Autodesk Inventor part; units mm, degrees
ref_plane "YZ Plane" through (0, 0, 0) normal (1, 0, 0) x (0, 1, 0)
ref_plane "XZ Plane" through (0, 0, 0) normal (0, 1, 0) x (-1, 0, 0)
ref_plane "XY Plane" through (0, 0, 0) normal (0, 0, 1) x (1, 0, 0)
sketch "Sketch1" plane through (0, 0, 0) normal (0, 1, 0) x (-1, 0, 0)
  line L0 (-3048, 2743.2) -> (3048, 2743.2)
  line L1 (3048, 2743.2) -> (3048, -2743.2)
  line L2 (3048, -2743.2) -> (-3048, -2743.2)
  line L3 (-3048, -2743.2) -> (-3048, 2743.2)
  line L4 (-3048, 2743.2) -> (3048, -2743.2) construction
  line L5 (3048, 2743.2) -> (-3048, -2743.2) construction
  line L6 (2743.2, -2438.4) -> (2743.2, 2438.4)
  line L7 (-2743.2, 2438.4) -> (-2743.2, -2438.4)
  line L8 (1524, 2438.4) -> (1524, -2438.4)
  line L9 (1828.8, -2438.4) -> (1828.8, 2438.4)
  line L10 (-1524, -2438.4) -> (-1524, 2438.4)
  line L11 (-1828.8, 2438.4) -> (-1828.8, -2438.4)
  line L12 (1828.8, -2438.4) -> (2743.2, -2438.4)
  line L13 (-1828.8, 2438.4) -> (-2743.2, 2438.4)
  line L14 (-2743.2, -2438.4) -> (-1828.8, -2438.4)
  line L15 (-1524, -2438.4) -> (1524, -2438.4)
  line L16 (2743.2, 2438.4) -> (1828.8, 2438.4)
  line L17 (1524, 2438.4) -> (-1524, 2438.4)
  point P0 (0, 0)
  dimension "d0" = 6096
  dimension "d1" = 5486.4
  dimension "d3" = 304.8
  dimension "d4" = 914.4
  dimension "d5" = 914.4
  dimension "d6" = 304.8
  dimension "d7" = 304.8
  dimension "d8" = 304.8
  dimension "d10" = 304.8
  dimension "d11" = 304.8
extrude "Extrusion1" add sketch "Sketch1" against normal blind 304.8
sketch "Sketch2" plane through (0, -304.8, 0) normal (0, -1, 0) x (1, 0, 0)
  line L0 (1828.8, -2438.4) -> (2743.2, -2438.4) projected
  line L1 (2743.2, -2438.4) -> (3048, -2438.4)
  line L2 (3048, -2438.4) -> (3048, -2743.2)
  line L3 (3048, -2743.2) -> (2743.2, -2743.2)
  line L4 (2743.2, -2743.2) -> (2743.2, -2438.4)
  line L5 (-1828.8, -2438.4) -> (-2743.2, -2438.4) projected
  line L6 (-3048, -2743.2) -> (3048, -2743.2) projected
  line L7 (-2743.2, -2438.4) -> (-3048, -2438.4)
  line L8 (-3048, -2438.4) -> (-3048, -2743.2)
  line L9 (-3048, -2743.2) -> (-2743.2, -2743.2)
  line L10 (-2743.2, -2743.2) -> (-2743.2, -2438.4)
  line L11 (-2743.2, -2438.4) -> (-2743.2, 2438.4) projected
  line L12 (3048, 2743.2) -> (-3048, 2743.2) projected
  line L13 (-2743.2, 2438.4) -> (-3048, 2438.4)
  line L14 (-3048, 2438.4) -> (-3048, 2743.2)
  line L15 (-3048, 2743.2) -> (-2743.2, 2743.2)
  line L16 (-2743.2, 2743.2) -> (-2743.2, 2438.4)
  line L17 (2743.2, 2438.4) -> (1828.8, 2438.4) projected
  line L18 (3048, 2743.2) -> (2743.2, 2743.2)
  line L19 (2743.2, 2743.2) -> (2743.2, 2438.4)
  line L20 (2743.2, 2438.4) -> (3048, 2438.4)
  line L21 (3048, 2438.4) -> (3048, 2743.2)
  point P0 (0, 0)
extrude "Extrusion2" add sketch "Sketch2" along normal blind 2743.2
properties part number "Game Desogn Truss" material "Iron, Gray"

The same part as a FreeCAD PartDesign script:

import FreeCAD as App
import Part
import Sketcher
Q = App.Units.Quantity

doc = App.newDocument("Part")
body = doc.addObject("PartDesign::Body", "Body")

sketch1 = body.newObject("Sketcher::SketchObject", "Sketch")
sketch1.AttachmentSupport = (doc.getObject("XZ_Plane"), [""])
sketch1.MapMode = "FlatFace"
sketch1.addGeometry([
    Part.LineSegment(App.Vector(-3048, 2743, 0), App.Vector(3048, 2743, 0)),
    Part.LineSegment(App.Vector(3048, 2743, 0), App.Vector(3048, -2743, 0)),
    Part.LineSegment(App.Vector(3048, -2743, 0), App.Vector(-3048, -2743, 0)),
    Part.LineSegment(App.Vector(-3048, -2743, 0), App.Vector(-3048, 2743, 0)),
    Part.LineSegment(App.Vector(2743, -2438, 0), App.Vector(2743, 2438, 0)),
    Part.LineSegment(App.Vector(2743, 2438, 0), App.Vector(1829, 2438, 0)),
    Part.LineSegment(App.Vector(1829, 2438, 0), App.Vector(1829, -2438, 0)),
    Part.LineSegment(App.Vector(1829, -2438, 0), App.Vector(2743, -2438, 0)),
    Part.LineSegment(App.Vector(1524, 2438, 0), App.Vector(-1524, 2438, 0)),
    Part.LineSegment(App.Vector(-1524, 2438, 0), App.Vector(-1524, -2438, 0)),
    Part.LineSegment(App.Vector(-1524, -2438, 0), App.Vector(1524, -2438, 0)),
    Part.LineSegment(App.Vector(1524, -2438, 0), App.Vector(1524, 2438, 0)),
    Part.LineSegment(App.Vector(-2743, 2438, 0), App.Vector(-2743, -2438, 0)),
    Part.LineSegment(App.Vector(-2743, -2438, 0), App.Vector(-1829, -2438, 0)),
    Part.LineSegment(App.Vector(-1829, -2438, 0), App.Vector(-1829, 2438, 0)),
    Part.LineSegment(App.Vector(-1829, 2438, 0), App.Vector(-2743, 2438, 0)),
], False)
sketch1.addConstraint([
    Sketcher.Constraint("Coincident", 0, 2, 1, 1),
    Sketcher.Constraint("Coincident", 1, 2, 2, 1),
    Sketcher.Constraint("Coincident", 2, 2, 3, 1),
    Sketcher.Constraint("Coincident", 3, 2, 0, 1),
    Sketcher.Constraint("Coincident", 4, 2, 5, 1),
    Sketcher.Constraint("Coincident", 5, 2, 6, 1),
    Sketcher.Constraint("Coincident", 6, 2, 7, 1),
    Sketcher.Constraint("Coincident", 7, 2, 4, 1),
    Sketcher.Constraint("Coincident", 8, 2, 9, 1),
    Sketcher.Constraint("Coincident", 9, 2, 10, 1),
    Sketcher.Constraint("Coincident", 10, 2, 11, 1),
    Sketcher.Constraint("Coincident", 11, 2, 8, 1),
    Sketcher.Constraint("Coincident", 12, 2, 13, 1),
    Sketcher.Constraint("Coincident", 13, 2, 14, 1),
    Sketcher.Constraint("Coincident", 14, 2, 15, 1),
    Sketcher.Constraint("Coincident", 15, 2, 12, 1),
    Sketcher.Constraint("Horizontal", 0),
    Sketcher.Constraint("Vertical", 1),
    Sketcher.Constraint("Horizontal", 2),
    Sketcher.Constraint("Vertical", 3),
    Sketcher.Constraint("Vertical", 4),
    Sketcher.Constraint("Horizontal", 5),
    Sketcher.Constraint("Vertical", 6),
    Sketcher.Constraint("Horizontal", 7),
    Sketcher.Constraint("Horizontal", 8),
    Sketcher.Constraint("Vertical", 9),
    Sketcher.Constraint("Horizontal", 10),
    Sketcher.Constraint("Vertical", 11),
    Sketcher.Constraint("Vertical", 12),
    Sketcher.Constraint("Horizontal", 13),
    Sketcher.Constraint("Vertical", 14),
    Sketcher.Constraint("Horizontal", 15),
    Sketcher.Constraint("Symmetric", 0, 2, 2, 2, -1, 1),
    Sketcher.Constraint("Symmetric", 8, 2, 10, 2, -1, 1),
    Sketcher.Constraint("Symmetric", 4, 2, 12, 2, -1, 1),
    Sketcher.Constraint("Symmetric", 6, 2, 14, 2, -1, 1),
    Sketcher.Constraint("Horizontal", 5, 2, 8, 2),
    Sketcher.Constraint("Horizontal", 7, 2, 9, 2),
    Sketcher.Constraint("DistanceX", 0, 1, 0, 2, Q("240 in")),
    Sketcher.Constraint("DistanceX", 5, 2, 5, 1, Q("36 in")),
    Sketcher.Constraint("DistanceY", 1, 2, 1, 1, Q("216 in")),
    Sketcher.Constraint("DistanceX", 4, 2, 0, 2, Q("12 in")),
    Sketcher.Constraint("DistanceY", 4, 2, 0, 2, Q("12 in")),
    Sketcher.Constraint("DistanceX", 10, 2, 6, 2, Q("12 in")),
])
pad1 = body.newObject("PartDesign::Pad", "Pad")
pad1.Profile = sketch1
pad1.Length = Q("12 in")

sketch2 = body.newObject("Sketcher::SketchObject", "Sketch001")
sketch2.AttachmentSupport = (doc.getObject("XZ_Plane"), [""])
sketch2.MapMode = "FlatFace"
sketch2.AttachmentOffset = App.Placement(App.Vector(0, 0, 12 * 25.4), App.Rotation())
sketch2.addGeometry([
    Part.LineSegment(App.Vector(3048, 2743, 0), App.Vector(2743, 2743, 0)),
    Part.LineSegment(App.Vector(2743, 2743, 0), App.Vector(2743, 2438, 0)),
    Part.LineSegment(App.Vector(2743, 2438, 0), App.Vector(3048, 2438, 0)),
    Part.LineSegment(App.Vector(3048, 2438, 0), App.Vector(3048, 2743, 0)),
    Part.LineSegment(App.Vector(-3048, 2438, 0), App.Vector(-2743, 2438, 0)),
    Part.LineSegment(App.Vector(-2743, 2438, 0), App.Vector(-2743, 2743, 0)),
    Part.LineSegment(App.Vector(-2743, 2743, 0), App.Vector(-3048, 2743, 0)),
    Part.LineSegment(App.Vector(-3048, 2743, 0), App.Vector(-3048, 2438, 0)),
    Part.LineSegment(App.Vector(-3048, -2743, 0), App.Vector(-2743, -2743, 0)),
    Part.LineSegment(App.Vector(-2743, -2743, 0), App.Vector(-2743, -2438, 0)),
    Part.LineSegment(App.Vector(-2743, -2438, 0), App.Vector(-3048, -2438, 0)),
    Part.LineSegment(App.Vector(-3048, -2438, 0), App.Vector(-3048, -2743, 0)),
    Part.LineSegment(App.Vector(3048, -2438, 0), App.Vector(2743, -2438, 0)),
    Part.LineSegment(App.Vector(2743, -2438, 0), App.Vector(2743, -2743, 0)),
    Part.LineSegment(App.Vector(2743, -2743, 0), App.Vector(3048, -2743, 0)),
    Part.LineSegment(App.Vector(3048, -2743, 0), App.Vector(3048, -2438, 0)),
], False)
sketch2.addConstraint([
    Sketcher.Constraint("Coincident", 0, 2, 1, 1),
    Sketcher.Constraint("Coincident", 1, 2, 2, 1),
    Sketcher.Constraint("Coincident", 2, 2, 3, 1),
    Sketcher.Constraint("Coincident", 3, 2, 0, 1),
    Sketcher.Constraint("Coincident", 4, 2, 5, 1),
    Sketcher.Constraint("Coincident", 5, 2, 6, 1),
    Sketcher.Constraint("Coincident", 6, 2, 7, 1),
    Sketcher.Constraint("Coincident", 7, 2, 4, 1),
    Sketcher.Constraint("Coincident", 8, 2, 9, 1),
    Sketcher.Constraint("Coincident", 9, 2, 10, 1),
    Sketcher.Constraint("Coincident", 10, 2, 11, 1),
    Sketcher.Constraint("Coincident", 11, 2, 8, 1),
    Sketcher.Constraint("Coincident", 12, 2, 13, 1),
    Sketcher.Constraint("Coincident", 13, 2, 14, 1),
    Sketcher.Constraint("Coincident", 14, 2, 15, 1),
    Sketcher.Constraint("Coincident", 15, 2, 12, 1),
    Sketcher.Constraint("Horizontal", 0),
    Sketcher.Constraint("Vertical", 1),
    Sketcher.Constraint("Horizontal", 2),
    Sketcher.Constraint("Vertical", 3),
    Sketcher.Constraint("Horizontal", 4),
    Sketcher.Constraint("Vertical", 5),
    Sketcher.Constraint("Horizontal", 6),
    Sketcher.Constraint("Vertical", 7),
    Sketcher.Constraint("Horizontal", 8),
    Sketcher.Constraint("Vertical", 9),
    Sketcher.Constraint("Horizontal", 10),
    Sketcher.Constraint("Vertical", 11),
    Sketcher.Constraint("Horizontal", 12),
    Sketcher.Constraint("Vertical", 13),
    Sketcher.Constraint("Horizontal", 14),
    Sketcher.Constraint("Vertical", 15),
    Sketcher.Constraint("Symmetric", 0, 2, 8, 2, -1, 1),
    Sketcher.Constraint("Symmetric", 2, 2, 10, 2, -1, 1),
    Sketcher.Constraint("Symmetric", 4, 2, 12, 2, -1, 1),
    Sketcher.Constraint("Symmetric", 6, 2, 14, 2, -1, 1),
    Sketcher.Constraint("Symmetric", 1, 2, 4, 2, -2),
    Sketcher.Constraint("Symmetric", 3, 2, 6, 2, -2),
    Sketcher.Constraint("Equal", 14, 1),
    Sketcher.Constraint("DistanceX", 0, 2, 0, 1, Q("12 in")),
    Sketcher.Constraint("DistanceX", -1, 1, 0, 2, Q("108 in")),
    Sketcher.Constraint("DistanceY", -1, 1, 0, 2, Q("108 in")),
])
pad2 = body.newObject("PartDesign::Pad", "Pad001")
pad2.Profile = sketch2
pad2.Length = Q("108 in")

doc.recompute()
